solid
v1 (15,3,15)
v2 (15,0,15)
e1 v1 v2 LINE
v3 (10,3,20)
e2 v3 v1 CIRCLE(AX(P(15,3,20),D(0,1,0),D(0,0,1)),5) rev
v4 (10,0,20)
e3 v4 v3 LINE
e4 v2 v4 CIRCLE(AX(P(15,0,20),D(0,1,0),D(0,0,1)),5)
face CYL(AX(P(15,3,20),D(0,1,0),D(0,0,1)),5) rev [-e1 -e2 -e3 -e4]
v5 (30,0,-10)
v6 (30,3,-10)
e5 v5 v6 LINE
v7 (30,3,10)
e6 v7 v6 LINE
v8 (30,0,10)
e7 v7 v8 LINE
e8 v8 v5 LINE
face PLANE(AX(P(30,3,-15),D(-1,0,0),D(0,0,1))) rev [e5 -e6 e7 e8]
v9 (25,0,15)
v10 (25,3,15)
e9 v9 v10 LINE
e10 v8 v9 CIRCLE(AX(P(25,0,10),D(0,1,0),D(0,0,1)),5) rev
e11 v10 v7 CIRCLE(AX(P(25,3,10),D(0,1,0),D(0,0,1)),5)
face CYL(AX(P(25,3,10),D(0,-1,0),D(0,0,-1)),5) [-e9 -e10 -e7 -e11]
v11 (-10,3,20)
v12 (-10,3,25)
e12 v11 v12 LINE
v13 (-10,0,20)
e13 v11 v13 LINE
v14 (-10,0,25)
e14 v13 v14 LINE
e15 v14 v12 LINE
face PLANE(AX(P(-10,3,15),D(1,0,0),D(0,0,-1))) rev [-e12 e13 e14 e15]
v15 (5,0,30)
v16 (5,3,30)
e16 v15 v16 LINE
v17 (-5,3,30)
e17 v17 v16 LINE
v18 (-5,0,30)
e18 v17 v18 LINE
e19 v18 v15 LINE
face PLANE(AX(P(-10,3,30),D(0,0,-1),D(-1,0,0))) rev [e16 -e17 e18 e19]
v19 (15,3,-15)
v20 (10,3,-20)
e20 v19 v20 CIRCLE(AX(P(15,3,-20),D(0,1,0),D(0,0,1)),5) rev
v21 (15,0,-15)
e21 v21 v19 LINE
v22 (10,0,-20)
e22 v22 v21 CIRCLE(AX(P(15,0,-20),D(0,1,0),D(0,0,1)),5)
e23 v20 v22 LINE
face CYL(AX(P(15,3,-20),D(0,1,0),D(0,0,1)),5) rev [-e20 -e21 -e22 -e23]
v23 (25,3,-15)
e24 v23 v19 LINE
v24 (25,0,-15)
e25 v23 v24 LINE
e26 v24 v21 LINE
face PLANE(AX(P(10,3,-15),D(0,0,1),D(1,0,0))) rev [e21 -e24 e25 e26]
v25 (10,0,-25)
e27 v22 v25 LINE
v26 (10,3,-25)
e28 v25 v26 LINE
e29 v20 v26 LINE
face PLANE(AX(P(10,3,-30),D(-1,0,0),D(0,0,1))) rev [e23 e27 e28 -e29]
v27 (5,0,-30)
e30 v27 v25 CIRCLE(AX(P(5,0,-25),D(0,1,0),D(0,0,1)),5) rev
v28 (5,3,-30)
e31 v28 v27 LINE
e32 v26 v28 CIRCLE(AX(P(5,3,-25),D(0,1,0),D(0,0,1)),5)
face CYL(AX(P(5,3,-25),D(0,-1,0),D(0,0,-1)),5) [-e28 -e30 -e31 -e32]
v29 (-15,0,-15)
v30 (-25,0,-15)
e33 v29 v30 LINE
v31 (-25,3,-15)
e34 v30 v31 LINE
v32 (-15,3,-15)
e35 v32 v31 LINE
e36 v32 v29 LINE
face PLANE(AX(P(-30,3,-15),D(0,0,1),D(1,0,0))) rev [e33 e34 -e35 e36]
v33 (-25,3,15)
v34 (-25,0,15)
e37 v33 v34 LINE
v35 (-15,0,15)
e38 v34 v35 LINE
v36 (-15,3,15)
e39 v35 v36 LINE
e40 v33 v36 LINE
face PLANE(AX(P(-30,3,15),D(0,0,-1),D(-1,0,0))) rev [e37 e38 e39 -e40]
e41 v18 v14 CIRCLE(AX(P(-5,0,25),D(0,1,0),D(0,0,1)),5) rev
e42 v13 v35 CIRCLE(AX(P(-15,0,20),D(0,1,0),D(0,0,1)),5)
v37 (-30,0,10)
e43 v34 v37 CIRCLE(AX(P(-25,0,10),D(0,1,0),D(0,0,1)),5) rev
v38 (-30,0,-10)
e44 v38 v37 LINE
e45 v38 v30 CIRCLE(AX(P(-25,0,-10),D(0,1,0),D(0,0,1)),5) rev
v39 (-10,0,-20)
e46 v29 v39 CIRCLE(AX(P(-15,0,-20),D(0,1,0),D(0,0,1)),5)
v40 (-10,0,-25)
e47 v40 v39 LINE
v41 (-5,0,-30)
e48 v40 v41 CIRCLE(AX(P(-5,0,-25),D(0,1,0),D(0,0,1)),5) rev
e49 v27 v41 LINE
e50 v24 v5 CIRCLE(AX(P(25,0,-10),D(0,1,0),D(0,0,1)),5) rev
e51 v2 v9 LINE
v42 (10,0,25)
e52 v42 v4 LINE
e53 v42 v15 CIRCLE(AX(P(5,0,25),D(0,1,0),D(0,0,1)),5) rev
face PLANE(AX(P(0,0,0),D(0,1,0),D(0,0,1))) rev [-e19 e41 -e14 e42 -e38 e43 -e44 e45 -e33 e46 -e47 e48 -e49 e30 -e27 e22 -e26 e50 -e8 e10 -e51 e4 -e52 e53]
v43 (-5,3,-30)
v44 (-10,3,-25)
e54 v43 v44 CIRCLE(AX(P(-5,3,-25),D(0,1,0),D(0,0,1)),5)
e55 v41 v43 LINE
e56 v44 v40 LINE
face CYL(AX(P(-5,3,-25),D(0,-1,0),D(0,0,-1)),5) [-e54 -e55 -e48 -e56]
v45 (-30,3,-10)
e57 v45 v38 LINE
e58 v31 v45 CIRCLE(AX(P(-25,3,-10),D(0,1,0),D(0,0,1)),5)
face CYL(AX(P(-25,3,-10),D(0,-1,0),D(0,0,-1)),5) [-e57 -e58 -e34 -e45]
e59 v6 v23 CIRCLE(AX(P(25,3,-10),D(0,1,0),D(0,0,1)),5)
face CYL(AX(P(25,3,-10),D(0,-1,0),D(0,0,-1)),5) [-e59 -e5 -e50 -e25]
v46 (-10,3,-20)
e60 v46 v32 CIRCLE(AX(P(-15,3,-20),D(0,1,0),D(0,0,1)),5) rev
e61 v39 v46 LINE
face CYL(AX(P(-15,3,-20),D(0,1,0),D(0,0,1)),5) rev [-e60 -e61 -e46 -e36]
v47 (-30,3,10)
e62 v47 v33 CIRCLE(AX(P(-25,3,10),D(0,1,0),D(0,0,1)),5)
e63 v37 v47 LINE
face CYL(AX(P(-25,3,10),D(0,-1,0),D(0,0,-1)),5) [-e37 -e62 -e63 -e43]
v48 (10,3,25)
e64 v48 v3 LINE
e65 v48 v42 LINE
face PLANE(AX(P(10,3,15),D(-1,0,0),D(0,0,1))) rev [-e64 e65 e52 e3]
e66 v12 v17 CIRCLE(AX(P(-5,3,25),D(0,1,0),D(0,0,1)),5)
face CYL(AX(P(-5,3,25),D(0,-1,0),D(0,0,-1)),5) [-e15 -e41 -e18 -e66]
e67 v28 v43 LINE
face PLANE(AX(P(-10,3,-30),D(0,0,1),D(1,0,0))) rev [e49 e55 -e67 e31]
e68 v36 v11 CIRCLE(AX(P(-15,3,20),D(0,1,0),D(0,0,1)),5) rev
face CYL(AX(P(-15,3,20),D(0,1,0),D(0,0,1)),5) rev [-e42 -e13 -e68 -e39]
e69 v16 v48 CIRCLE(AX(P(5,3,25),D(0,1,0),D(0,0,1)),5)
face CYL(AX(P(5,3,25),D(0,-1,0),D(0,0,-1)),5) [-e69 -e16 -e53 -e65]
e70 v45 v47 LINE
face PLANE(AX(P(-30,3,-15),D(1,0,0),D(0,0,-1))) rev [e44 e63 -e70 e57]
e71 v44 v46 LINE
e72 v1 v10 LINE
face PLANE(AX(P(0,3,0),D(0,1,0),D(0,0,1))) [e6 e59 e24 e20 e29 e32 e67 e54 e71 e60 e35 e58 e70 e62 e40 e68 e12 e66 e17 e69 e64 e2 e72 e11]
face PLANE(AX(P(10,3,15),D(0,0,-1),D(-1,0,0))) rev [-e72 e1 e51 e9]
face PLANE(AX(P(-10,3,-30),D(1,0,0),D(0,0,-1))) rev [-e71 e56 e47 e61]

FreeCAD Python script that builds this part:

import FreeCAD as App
import Part
import Sketcher

V = App.Vector
Q = App.Units.Quantity


def edges_at(feature, points):
    """Names of the edges that pass closest to the given points."""
    edges = feature.Shape.Edges
    near = lambda p: min(range(len(edges)), key=lambda i: edges[i].distToShape(Part.Vertex(*p))[0])
    return sorted({f"Edge{near(p) + 1}" for p in points})

doc = App.newDocument("Part")
body = doc.addObject("PartDesign::Body", "Body")

# Sketch on XZ plane
sketch1 = doc.addObject("Sketcher::SketchObject", "Sketch")
body.addObject(sketch1)
sketch1.AttachmentSupport = (doc.XZ_Plane, [""])
sketch1.MapMode = "FlatFace"
sketch1.addGeometry(Part.LineSegment(V(30, -15, 0), V(10, -15, 0)), False)
sketch1.addGeometry(Part.LineSegment(V(10, -15, 0), V(10, -30, 0)), False)
sketch1.addGeometry(Part.LineSegment(V(10, -30, 0), V(-10, -30, 0)), False)
sketch1.addGeometry(Part.LineSegment(V(-10, -30, 0), V(-10, -15, 0)), False)
sketch1.addGeometry(Part.LineSegment(V(-10, -15, 0), V(-30, -15, 0)), False)
sketch1.addGeometry(Part.LineSegment(V(-30, -15, 0), V(-30, 15, 0)), False)
sketch1.addGeometry(Part.LineSegment(V(-30, 15, 0), V(-10, 15, 0)), False)
sketch1.addGeometry(Part.LineSegment(V(-10, 15, 0), V(-10, 30, 0)), False)
sketch1.addGeometry(Part.LineSegment(V(-10, 30, 0), V(10, 30, 0)), False)
sketch1.addGeometry(Part.LineSegment(V(10, 30, 0), V(10, 15, 0)), False)
sketch1.addGeometry(Part.LineSegment(V(10, 15, 0), V(30, 15, 0)), False)
sketch1.addGeometry(Part.LineSegment(V(30, 15, 0), V(30, -15, 0)), False)
sketch1.addConstraint(Sketcher.Constraint("Coincident", 0, 2, 1, 1))
sketch1.addConstraint(Sketcher.Constraint("Coincident", 1, 2, 2, 1))
sketch1.addConstraint(Sketcher.Constraint("Coincident", 2, 2, 3, 1))
sketch1.addConstraint(Sketcher.Constraint("Coincident", 3, 2, 4, 1))
sketch1.addConstraint(Sketcher.Constraint("Coincident", 4, 2, 5, 1))
sketch1.addConstraint(Sketcher.Constraint("Coincident", 5, 2, 6, 1))
sketch1.addConstraint(Sketcher.Constraint("Coincident", 6, 2, 7, 1))
sketch1.addConstraint(Sketcher.Constraint("Coincident", 7, 2, 8, 1))
sketch1.addConstraint(Sketcher.Constraint("Coincident", 8, 2, 9, 1))
sketch1.addConstraint(Sketcher.Constraint("Coincident", 9, 2, 10, 1))
sketch1.addConstraint(Sketcher.Constraint("Coincident", 10, 2, 11, 1))
sketch1.addConstraint(Sketcher.Constraint("Coincident", 11, 2, 0, 1))
sketch1.addConstraint(Sketcher.Constraint("Horizontal", 0))
sketch1.addConstraint(Sketcher.Constraint("Vertical", 1))
sketch1.addConstraint(Sketcher.Constraint("Horizontal", 2))
sketch1.addConstraint(Sketcher.Constraint("Vertical", 3))
sketch1.addConstraint(Sketcher.Constraint("Horizontal", 4))
sketch1.addConstraint(Sketcher.Constraint("Vertical", 5))
sketch1.addConstraint(Sketcher.Constraint("Horizontal", 6))
sketch1.addConstraint(Sketcher.Constraint("Vertical", 7))
sketch1.addConstraint(Sketcher.Constraint("Horizontal", 8))
sketch1.addConstraint(Sketcher.Constraint("Vertical", 9))
sketch1.addConstraint(Sketcher.Constraint("Horizontal", 10))
sketch1.addConstraint(Sketcher.Constraint("Vertical", 11))
sketch1.addConstraint(Sketcher.Constraint("Symmetric", 0, 2, 6, 2, -1, 1))
sketch1.addConstraint(Sketcher.Constraint("Symmetric", 2, 2, 8, 2, -1, 1))
sketch1.addConstraint(Sketcher.Constraint("Symmetric", 4, 2, 10, 2, -1, 1))
sketch1.addConstraint(Sketcher.Constraint("Symmetric", 0, 2, 3, 2, -2))
sketch1.addConstraint(Sketcher.Constraint("Equal", 0, 2))
sketch1.addConstraint(Sketcher.Constraint("DistanceX", 0, 2, 0, 1, Q("20 mm")))
sketch1.addConstraint(Sketcher.Constraint("DistanceY", 1, 2, 1, 1, Q("15 mm")))
sketch1.addConstraint(Sketcher.Constraint("DistanceY", 5, 1, 5, 2, Q("30 mm")))
pad1 = doc.addObject("PartDesign::Pad", "Pad")
body.addObject(pad1)
pad1.Profile = sketch1
pad1.Length = 3
pad1.Reversed = True
doc.recompute()

fillet = doc.addObject("PartDesign::Fillet", "Fillet")
body.addObject(fillet)
fillet.Base = (pad1, edges_at(pad1, [
    (10, 1.5, 30),
    (-10, 1.5, 30),
    (-10, 1.5, 15),
    (-30, 1.5, 15),
    (-30, 1.5, -15),
    (-10, 1.5, -15),
    (-10, 1.5, -30),
    (10, 1.5, -30),
    (10, 1.5, -15),
    (30, 1.5, -15),
    (30, 1.5, 15),
    (10, 1.5, 15),
]))
fillet.Radius = 5

doc.recompute()
